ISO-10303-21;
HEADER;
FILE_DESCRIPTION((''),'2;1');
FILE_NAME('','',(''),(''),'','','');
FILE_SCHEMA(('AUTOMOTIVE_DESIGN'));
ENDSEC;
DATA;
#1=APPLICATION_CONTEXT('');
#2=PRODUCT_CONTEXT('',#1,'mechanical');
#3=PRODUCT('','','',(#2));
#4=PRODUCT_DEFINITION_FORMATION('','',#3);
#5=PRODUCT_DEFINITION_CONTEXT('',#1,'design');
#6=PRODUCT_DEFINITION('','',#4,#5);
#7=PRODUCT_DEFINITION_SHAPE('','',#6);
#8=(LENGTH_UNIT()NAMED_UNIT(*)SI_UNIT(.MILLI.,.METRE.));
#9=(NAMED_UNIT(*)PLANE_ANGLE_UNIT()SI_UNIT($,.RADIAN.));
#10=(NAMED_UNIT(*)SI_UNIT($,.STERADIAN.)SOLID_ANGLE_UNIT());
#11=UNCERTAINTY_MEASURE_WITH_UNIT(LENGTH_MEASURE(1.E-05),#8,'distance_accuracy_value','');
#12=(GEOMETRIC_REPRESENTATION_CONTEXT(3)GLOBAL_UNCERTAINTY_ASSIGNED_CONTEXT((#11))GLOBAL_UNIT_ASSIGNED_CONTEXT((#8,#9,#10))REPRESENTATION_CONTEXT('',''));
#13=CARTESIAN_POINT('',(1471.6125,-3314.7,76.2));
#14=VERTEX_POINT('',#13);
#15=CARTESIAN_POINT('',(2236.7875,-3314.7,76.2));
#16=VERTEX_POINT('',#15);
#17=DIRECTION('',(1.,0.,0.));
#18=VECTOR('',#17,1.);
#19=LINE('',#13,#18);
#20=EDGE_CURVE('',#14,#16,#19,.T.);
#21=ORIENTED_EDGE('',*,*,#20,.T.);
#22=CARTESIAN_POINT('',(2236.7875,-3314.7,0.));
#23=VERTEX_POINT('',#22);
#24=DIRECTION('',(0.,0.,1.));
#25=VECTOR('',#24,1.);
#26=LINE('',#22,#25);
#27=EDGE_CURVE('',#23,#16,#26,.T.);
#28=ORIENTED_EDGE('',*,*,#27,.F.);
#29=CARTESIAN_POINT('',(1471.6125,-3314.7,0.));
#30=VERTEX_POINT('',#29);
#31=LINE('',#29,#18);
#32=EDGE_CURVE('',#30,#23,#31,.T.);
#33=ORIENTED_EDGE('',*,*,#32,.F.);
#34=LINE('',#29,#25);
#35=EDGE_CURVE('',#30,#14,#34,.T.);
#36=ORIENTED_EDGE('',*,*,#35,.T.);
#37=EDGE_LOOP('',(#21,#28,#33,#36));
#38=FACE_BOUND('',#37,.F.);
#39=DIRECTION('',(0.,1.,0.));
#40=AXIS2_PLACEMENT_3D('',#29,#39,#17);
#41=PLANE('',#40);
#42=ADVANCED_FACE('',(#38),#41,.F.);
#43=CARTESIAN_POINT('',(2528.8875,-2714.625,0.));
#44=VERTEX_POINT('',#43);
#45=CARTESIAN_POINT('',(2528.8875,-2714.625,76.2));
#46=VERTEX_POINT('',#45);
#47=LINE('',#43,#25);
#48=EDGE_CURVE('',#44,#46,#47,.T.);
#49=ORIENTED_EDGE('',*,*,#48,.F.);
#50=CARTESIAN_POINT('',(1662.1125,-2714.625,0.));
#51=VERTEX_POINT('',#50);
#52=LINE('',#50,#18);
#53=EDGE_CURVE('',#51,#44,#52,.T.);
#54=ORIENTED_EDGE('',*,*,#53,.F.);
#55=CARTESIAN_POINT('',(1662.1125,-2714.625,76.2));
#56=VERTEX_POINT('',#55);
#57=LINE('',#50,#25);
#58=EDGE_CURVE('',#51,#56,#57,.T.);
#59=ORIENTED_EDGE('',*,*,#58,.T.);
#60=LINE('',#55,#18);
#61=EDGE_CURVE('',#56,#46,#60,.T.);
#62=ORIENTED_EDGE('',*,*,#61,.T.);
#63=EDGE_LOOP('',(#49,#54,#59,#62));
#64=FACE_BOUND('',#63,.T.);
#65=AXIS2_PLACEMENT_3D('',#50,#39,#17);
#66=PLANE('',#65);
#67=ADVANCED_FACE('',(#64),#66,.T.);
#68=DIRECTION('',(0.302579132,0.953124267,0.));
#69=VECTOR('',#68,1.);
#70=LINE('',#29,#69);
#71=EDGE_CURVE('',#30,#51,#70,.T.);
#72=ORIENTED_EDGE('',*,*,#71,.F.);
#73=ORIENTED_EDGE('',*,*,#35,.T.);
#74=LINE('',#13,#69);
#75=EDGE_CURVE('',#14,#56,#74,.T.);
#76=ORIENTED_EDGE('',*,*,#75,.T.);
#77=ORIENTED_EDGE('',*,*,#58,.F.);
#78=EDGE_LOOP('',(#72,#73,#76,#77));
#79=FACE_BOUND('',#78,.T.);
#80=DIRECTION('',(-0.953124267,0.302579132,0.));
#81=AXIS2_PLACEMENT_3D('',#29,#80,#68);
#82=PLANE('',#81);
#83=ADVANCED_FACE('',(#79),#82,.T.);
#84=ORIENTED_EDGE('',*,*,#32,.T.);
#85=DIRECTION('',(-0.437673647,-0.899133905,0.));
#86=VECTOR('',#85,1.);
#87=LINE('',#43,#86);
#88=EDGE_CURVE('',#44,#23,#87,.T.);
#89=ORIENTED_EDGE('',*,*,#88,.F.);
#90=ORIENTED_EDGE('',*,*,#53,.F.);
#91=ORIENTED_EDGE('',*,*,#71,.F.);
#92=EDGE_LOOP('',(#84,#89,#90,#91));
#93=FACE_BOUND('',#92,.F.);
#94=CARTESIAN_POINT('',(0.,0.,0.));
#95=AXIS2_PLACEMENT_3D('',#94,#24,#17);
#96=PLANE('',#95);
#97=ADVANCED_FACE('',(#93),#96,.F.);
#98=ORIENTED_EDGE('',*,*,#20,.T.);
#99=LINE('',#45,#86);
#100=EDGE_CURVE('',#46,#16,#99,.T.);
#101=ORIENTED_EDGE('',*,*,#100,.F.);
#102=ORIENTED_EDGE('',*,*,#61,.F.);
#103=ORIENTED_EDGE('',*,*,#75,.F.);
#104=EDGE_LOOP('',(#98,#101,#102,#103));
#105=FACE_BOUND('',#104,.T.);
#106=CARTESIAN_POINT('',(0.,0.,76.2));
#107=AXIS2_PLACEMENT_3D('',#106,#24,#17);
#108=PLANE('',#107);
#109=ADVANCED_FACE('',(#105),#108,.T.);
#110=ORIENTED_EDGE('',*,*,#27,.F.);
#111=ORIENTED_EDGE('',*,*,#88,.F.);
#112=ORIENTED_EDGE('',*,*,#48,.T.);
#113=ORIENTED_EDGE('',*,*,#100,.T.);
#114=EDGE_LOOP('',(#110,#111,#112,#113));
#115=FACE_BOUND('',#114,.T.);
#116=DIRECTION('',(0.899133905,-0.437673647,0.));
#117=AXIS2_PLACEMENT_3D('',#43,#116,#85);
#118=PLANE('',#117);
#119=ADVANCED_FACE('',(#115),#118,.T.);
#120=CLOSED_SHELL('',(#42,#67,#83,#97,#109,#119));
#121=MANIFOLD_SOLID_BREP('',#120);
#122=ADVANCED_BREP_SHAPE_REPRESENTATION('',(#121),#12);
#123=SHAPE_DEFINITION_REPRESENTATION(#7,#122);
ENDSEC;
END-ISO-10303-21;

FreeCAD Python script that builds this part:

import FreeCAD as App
import Part
import Sketcher
from FreeCAD import Vector
Q = App.Units.Quantity


def add_polygon(sketch, points):
    """Adds a closed chain of lines whose ends are joined by coincident constraints."""
    first, n = sketch.GeometryCount, len(points)
    for a, b in zip(points, points[1:] + points[:1]):
        sketch.addGeometry(Part.LineSegment(App.Vector(*a, 0), App.Vector(*b, 0)), False)
    for i in range(n):
        sketch.addConstraint(Sketcher.Constraint("Coincident", first + i, 2, first + (i + 1) % n, 1))

doc = App.newDocument("Part")
body = doc.addObject("PartDesign::Body", "Body")

# Sketch on XY plane
sketch1 = doc.addObject("Sketcher::SketchObject", "Sketch")
body.addObject(sketch1)
sketch1.AttachmentSupport = (doc.XY_Plane, [""])
sketch1.MapMode = "FlatFace"
add_polygon(sketch1, [(1662, -2715), (1472, -3315), (2237, -3315), (2529, -2715)])  # lines 0-3
sketch1.addConstraint(Sketcher.Constraint("Horizontal", 1))
sketch1.addConstraint(Sketcher.Constraint("Horizontal", 3))
sketch1.addConstraint(Sketcher.Constraint("DistanceX", 1, 1, 1, 2, Q("30.125 in")))
sketch1.addConstraint(Sketcher.Constraint("DistanceX", 3, 2, 3, 1, Q("34.125 in")))
sketch1.addConstraint(Sketcher.Constraint("DistanceY", 1, 2, 2, 2, Q("23.625 in")))
sketch1.addConstraint(Sketcher.Constraint("DistanceX", 0, 2, 2, 2, Q("41.625 in")))
sketch1.addConstraint(Sketcher.Constraint("DistanceY", 0, 2, -1, 1, Q("130.5 in")))
sketch1.addConstraint(Sketcher.Constraint("DistanceX", -1, 1, 0, 2, Q("57.9375 in")))
pad1 = doc.addObject("PartDesign::Pad", "Pad")
body.addObject(pad1)
pad1.Profile = sketch1
pad1.Length = Q("3 in")

doc.recompute()
